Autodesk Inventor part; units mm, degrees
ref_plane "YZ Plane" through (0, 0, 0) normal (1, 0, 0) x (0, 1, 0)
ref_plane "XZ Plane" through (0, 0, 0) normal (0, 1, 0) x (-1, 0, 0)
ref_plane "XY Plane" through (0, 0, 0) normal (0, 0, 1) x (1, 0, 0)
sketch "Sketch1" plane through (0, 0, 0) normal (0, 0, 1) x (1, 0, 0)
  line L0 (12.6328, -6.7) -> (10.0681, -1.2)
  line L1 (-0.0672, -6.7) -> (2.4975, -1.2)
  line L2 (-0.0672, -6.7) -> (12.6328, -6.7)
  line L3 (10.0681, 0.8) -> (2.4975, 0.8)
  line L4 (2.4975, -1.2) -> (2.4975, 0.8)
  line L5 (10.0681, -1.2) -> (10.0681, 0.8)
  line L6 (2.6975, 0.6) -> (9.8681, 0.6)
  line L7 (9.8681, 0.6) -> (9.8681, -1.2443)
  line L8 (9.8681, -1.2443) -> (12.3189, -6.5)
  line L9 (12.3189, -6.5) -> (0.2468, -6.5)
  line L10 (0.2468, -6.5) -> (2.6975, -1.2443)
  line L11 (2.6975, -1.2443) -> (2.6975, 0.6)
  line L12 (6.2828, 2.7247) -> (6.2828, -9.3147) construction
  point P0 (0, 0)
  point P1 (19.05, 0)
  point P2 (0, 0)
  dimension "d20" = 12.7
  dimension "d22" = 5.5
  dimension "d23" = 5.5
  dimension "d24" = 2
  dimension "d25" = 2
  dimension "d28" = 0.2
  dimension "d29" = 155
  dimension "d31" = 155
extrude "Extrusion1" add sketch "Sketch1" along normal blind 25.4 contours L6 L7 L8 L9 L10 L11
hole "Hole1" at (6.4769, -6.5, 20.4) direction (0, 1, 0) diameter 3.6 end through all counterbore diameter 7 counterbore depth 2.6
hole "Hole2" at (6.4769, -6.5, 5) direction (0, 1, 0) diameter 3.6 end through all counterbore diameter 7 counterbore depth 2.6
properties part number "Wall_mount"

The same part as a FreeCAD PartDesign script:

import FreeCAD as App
import Part
import Sketcher
from FreeCAD import Vector
Q = App.Units.Quantity

doc = App.newDocument("Part")
body = doc.addObject("PartDesign::Body", "Body")

# Sketch on XY plane
sketch1 = doc.addObject("Sketcher::SketchObject", "Sketch")
body.addObject(sketch1)
sketch1.AttachmentSupport = (doc.XY_Plane, [""])
sketch1.MapMode = "FlatFace"
sketch1.addGeometry(Part.LineSegment(Vector(9.9, 0.6, 0), Vector(2.7, 0.6, 0)), False)
sketch1.addGeometry(Part.LineSegment(Vector(2.7, 0.6, 0), Vector(2.7, -1.2, 0)), False)
sketch1.addGeometry(Part.LineSegment(Vector(2.7, -1.2, 0), Vector(0.2, -6.5, 0)), False)
sketch1.addGeometry(Part.LineSegment(Vector(0.2, -6.5, 0), Vector(12.3, -6.5, 0)), False)
sketch1.addGeometry(Part.LineSegment(Vector(12.3, -6.5, 0), Vector(9.9, -1.2, 0)), False)
sketch1.addGeometry(Part.LineSegment(Vector(9.9, -1.2, 0), Vector(9.9, 0.6, 0)), False)
sketch1.addConstraint(Sketcher.Constraint("Coincident", 0, 2, 1, 1))
sketch1.addConstraint(Sketcher.Constraint("Coincident", 1, 2, 2, 1))
sketch1.addConstraint(Sketcher.Constraint("Coincident", 2, 2, 3, 1))
sketch1.addConstraint(Sketcher.Constraint("Coincident", 3, 2, 4, 1))
sketch1.addConstraint(Sketcher.Constraint("Coincident", 4, 2, 5, 1))
sketch1.addConstraint(Sketcher.Constraint("Coincident", 5, 2, 0, 1))
sketch1.addConstraint(Sketcher.Constraint("Horizontal", 0))
sketch1.addConstraint(Sketcher.Constraint("Vertical", 1))
sketch1.addConstraint(Sketcher.Constraint("Horizontal", 3))
sketch1.addConstraint(Sketcher.Constraint("Vertical", 5))
sketch1.addConstraint(Sketcher.Constraint("Horizontal", 1, 2, 4, 2))
sketch1.addConstraint(Sketcher.Constraint("Equal", 2, 4))
sketch1.addConstraint(Sketcher.Constraint("Angle", 2, Q("-114.9993 deg")))
sketch1.addConstraint(Sketcher.Constraint("DistanceY", -1, 1, 0, 2, 0.6))
sketch1.addConstraint(Sketcher.Constraint("DistanceY", 2, 2, -1, 1, 6.5))
sketch1.addConstraint(Sketcher.Constraint("DistanceX", 3, 1, 3, 2, 12.072))
sketch1.addConstraint(Sketcher.Constraint("Distance", 2, 5.799))
sketch1.addConstraint(Sketcher.Constraint("DistanceX", -1, 1, 3, 2, 12.319))
pad1 = doc.addObject("PartDesign::Pad", "Pad")
body.addObject(pad1)
pad1.Profile = sketch1
pad1.Length = 25.4

# Sketch on XZ plane
sketch2 = doc.addObject("Sketcher::SketchObject", "Sketch001")
body.addObject(sketch2)
sketch2.AttachmentSupport = (doc.XZ_Plane, [""])
sketch2.MapMode = "FlatFace"
sketch2.AttachmentOffset = App.Placement(Vector(0, 0, 6.5), App.Rotation())
sketch2.addGeometry(Part.Circle(Vector(6.5, 20.4, 0), Vector(0, 0, 1), 1.8), False)
sketch2.addConstraint(Sketcher.Constraint("Diameter", 0, 3.6))
sketch2.addConstraint(Sketcher.Constraint("DistanceY", -1, 1, 0, 3, 20.4))
sketch2.addConstraint(Sketcher.Constraint("DistanceX", -1, 1, 0, 3, 6.477))
doc.recompute()
hole = doc.addObject("PartDesign::Hole", "Hole")
body.addObject(hole)
hole.Profile = sketch2
hole.ThreadType = "None"
hole.Diameter = 3.6
hole.DepthType = "ThroughAll"
hole.HoleCutType = "Counterbore"
hole.HoleCutDiameter = 7
hole.HoleCutDepth = 2.6

# Sketch on XZ plane
sketch3 = doc.addObject("Sketcher::SketchObject", "Sketch002")
body.addObject(sketch3)
sketch3.AttachmentSupport = (doc.XZ_Plane, [""])
sketch3.MapMode = "FlatFace"
sketch3.AttachmentOffset = App.Placement(Vector(0, 0, 6.5), App.Rotation())
sketch3.addGeometry(Part.Circle(Vector(6.5, 5, 0), Vector(0, 0, 1), 1.8), False)
sketch3.addConstraint(Sketcher.Constraint("Diameter", 0, 3.6))
sketch3.addConstraint(Sketcher.Constraint("DistanceY", -1, 1, 0, 3, 5.0))
sketch3.addConstraint(Sketcher.Constraint("DistanceX", -1, 1, 0, 3, 6.477))
doc.recompute()
hole2 = doc.addObject("PartDesign::Hole", "Hole001")
body.addObject(hole2)
hole2.Profile = sketch3
hole2.ThreadType = "None"
hole2.Diameter = 3.6
hole2.DepthType = "ThroughAll"
hole2.HoleCutType = "Counterbore"
hole2.HoleCutDiameter = 7
hole2.HoleCutDepth = 2.6

doc.recompute()
